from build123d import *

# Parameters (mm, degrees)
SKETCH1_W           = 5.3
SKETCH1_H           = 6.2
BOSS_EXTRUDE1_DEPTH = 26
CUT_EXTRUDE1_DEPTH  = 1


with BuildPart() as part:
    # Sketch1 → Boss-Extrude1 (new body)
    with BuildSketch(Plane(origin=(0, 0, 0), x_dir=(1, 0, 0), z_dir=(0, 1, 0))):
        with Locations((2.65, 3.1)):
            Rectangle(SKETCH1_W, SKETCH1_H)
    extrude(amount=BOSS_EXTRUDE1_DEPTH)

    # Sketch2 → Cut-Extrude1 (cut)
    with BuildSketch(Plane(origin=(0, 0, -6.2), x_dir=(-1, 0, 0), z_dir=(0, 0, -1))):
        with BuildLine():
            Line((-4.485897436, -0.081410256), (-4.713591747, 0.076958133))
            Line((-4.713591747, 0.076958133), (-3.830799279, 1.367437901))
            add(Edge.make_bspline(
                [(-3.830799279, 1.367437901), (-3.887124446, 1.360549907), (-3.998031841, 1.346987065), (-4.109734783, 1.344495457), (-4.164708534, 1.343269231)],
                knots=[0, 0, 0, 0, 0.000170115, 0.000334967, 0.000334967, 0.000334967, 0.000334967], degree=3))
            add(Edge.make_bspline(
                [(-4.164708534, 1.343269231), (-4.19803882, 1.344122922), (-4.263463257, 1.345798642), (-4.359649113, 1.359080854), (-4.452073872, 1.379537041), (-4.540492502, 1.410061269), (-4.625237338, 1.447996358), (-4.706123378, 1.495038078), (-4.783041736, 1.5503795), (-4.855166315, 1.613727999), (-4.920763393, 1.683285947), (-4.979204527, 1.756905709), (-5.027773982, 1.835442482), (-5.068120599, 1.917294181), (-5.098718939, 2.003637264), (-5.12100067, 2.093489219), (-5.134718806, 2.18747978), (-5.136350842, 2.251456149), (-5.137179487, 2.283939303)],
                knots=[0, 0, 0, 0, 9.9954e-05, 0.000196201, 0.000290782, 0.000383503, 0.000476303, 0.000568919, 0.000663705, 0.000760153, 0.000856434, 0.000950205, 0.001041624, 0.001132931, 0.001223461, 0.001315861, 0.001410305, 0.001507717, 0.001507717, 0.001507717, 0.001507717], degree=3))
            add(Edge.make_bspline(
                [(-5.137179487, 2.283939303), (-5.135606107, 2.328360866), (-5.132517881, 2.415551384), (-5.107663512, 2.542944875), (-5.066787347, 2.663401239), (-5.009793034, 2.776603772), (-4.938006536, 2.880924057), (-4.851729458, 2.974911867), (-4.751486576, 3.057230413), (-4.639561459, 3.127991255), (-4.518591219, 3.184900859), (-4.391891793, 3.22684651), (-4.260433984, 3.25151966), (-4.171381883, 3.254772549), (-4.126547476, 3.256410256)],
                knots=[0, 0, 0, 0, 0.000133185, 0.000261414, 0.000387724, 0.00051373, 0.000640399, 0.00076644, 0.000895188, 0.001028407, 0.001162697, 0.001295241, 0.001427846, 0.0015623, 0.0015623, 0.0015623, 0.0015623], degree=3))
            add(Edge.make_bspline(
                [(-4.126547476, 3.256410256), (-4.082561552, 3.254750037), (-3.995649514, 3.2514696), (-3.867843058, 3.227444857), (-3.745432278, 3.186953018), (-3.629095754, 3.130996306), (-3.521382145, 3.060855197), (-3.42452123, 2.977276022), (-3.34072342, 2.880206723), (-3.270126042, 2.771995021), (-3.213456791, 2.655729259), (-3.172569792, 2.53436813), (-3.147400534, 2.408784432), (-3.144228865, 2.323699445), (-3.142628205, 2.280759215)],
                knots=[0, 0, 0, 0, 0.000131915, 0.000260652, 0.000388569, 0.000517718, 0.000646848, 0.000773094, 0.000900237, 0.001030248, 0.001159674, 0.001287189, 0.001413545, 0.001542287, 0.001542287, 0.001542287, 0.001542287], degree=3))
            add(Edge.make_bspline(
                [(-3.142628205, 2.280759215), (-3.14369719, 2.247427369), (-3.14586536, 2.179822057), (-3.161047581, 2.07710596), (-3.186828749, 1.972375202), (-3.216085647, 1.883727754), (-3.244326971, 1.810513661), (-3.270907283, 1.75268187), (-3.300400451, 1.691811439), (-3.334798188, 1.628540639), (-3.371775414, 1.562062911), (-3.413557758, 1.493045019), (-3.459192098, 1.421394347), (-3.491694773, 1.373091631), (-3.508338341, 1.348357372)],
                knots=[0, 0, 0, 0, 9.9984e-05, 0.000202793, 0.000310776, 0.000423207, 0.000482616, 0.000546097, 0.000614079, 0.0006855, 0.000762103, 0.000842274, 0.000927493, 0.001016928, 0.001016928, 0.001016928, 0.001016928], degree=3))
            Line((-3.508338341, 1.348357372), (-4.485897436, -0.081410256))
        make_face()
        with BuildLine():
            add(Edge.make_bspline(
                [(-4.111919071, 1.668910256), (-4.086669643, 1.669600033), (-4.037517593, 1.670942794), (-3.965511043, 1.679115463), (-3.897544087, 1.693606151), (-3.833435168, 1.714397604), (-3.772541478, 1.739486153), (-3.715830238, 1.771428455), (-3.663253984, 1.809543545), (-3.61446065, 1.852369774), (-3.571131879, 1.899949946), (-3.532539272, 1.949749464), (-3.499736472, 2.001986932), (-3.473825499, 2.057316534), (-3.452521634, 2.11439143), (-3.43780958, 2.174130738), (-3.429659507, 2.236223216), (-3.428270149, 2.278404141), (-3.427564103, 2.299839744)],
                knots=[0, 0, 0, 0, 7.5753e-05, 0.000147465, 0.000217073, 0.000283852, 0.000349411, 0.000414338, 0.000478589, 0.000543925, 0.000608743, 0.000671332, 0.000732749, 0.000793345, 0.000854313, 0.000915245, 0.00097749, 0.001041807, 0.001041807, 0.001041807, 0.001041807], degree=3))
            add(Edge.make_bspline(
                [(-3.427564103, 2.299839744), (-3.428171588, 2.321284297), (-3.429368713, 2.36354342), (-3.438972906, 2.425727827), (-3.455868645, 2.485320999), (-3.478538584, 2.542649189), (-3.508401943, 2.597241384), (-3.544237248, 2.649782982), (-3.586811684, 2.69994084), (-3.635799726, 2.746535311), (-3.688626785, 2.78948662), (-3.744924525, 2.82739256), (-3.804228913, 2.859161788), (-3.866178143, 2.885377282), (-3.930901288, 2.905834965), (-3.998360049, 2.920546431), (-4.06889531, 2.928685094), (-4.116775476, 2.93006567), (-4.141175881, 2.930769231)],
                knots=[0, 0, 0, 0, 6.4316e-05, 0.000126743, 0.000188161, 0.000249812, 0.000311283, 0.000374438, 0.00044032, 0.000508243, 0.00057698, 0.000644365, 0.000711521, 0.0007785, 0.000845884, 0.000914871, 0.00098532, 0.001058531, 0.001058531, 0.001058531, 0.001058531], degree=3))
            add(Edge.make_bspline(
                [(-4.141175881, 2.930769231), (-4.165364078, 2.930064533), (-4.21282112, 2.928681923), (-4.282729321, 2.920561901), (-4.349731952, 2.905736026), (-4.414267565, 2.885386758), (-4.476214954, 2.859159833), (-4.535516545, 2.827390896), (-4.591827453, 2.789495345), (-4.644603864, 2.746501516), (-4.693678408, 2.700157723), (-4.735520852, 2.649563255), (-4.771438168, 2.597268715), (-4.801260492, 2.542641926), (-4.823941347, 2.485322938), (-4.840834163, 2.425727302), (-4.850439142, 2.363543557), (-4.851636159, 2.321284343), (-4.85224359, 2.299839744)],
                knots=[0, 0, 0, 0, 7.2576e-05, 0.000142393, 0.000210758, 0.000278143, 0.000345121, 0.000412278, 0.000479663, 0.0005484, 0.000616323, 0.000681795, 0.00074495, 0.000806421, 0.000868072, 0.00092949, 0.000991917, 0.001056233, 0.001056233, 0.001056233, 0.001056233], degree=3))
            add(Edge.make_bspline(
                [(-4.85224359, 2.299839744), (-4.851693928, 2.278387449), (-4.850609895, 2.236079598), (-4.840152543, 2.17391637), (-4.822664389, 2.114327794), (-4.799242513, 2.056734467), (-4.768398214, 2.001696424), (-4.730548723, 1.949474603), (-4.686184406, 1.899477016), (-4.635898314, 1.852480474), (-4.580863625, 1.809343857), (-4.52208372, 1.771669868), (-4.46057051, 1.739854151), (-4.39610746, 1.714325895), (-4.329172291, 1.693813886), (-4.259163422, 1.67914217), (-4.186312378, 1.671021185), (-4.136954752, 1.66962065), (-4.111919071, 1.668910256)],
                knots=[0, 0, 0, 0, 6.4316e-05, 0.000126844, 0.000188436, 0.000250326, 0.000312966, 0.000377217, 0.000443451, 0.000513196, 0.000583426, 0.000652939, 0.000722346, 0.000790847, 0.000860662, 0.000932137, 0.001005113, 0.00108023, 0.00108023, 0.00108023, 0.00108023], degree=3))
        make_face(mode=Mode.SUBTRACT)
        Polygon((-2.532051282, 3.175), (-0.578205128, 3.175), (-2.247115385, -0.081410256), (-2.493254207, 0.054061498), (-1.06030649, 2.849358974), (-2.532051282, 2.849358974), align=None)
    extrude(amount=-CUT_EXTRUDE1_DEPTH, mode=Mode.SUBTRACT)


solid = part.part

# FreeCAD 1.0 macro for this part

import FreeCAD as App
import Part
import Sketcher
from FreeCAD import Vector


def add_polygon(sketch, points):
    """Adds a closed chain of lines whose ends are joined by coincident constraints."""
    first, n = sketch.GeometryCount, len(points)
    for a, b in zip(points, points[1:] + points[:1]):
        sketch.addGeometry(Part.LineSegment(App.Vector(*a, 0), App.Vector(*b, 0)), False)
    for i in range(n):
        sketch.addConstraint(Sketcher.Constraint("Coincident", first + i, 2, first + (i + 1) % n, 1))

doc = App.newDocument("Part")
body = doc.addObject("PartDesign::Body", "Body")

# Sketch on XZ plane
sketch1 = body.newObject("Sketcher::SketchObject", "Sketch")
sketch1.AttachmentSupport = (doc.getObject("XZ_Plane"), [""])
sketch1.MapMode = "FlatFace"
add_polygon(sketch1, [(0, -6), (0, 0), (5, 0), (5, -6)])  # lines 0-3
sketch1.addConstraint(Sketcher.Constraint("Vertical", 0))
sketch1.addConstraint(Sketcher.Constraint("Horizontal", 1))
sketch1.addConstraint(Sketcher.Constraint("Vertical", 2))
sketch1.addConstraint(Sketcher.Constraint("Horizontal", 3))
sketch1.addConstraint(Sketcher.Constraint("Coincident", 0, 2, -1, 1))
sketch1.addConstraint(Sketcher.Constraint("DistanceX", 1, 1, 1, 2, 5.3))
sketch1.addConstraint(Sketcher.Constraint("DistanceY", 0, 1, 0, 2, 6.2))
pad1 = body.newObject("PartDesign::Pad", "Pad")
pad1.Profile = sketch1
pad1.Length = 26
pad1.Reversed = True

# Sketch on XY plane
sketch2 = body.newObject("Sketcher::SketchObject", "Sketch001")
sketch2.AttachmentSupport = (doc.getObject("XY_Plane"), [""])
sketch2.MapMode = "FlatFace"
sketch2.AttachmentOffset = App.Placement(Vector(0, 0, -6.2), App.Rotation())
sketch2.addGeometry(Part.LineSegment(Vector(4.713592, 0.076958, 0), Vector(4.485897, -0.08141, 0)), False)  # 0
sketch2.addGeometry(Part.LineSegment(Vector(4.485897, -0.08141, 0), Vector(3.508338, 1.348357, 0)), False)  # 1
sketch2.addGeometry(Part.BSplineCurve([Vector(3.142628, 2.280759, 0), Vector(3.143697, 2.247427, 0), Vector(3.145865, 2.179822, 0), Vector(3.161048, 2.077106, 0), Vector(3.186829, 1.972375, 0), Vector(3.216086, 1.883728, 0), Vector(3.244327, 1.810514, 0), Vector(3.270907, 1.752682, 0), Vector(3.3004, 1.691811, 0), Vector(3.334798, 1.628541, 0), Vector(3.371775, 1.562063, 0), Vector(3.413558, 1.493045, 0), Vector(3.459192, 1.421394, 0), Vector(3.491695, 1.373092, 0), Vector(3.508338, 1.348357, 0)], [4, 1, 1, 1, 1, 1, 1, 1, 1, 1, 1, 1, 4], [0, 0.000099984, 0.000202793, 0.000310776, 0.000423207, 0.000482616, 0.000546097, 0.000614079, 0.0006855, 0.000762103, 0.000842274, 0.000927493, 0.001016928], False, 3, [1, 1, 1, 1, 1, 1, 1, 1, 1, 1, 1, 1, 1, 1, 1], False), False)  # 2
sketch2.addGeometry(Part.BSplineCurve([Vector(4.126547, 3.25641, 0), Vector(4.082562, 3.25475, 0), Vector(3.99565, 3.25147, 0), Vector(3.867843, 3.227445, 0), Vector(3.745432, 3.186953, 0), Vector(3.629096, 3.130996, 0), Vector(3.521382, 3.060855, 0), Vector(3.424521, 2.977276, 0), Vector(3.340723, 2.880207, 0), Vector(3.270126, 2.771995, 0), Vector(3.213457, 2.655729, 0), Vector(3.17257, 2.534368, 0), Vector(3.147401, 2.408784, 0), Vector(3.144229, 2.323699, 0), Vector(3.142628, 2.280759, 0)], [4, 1, 1, 1, 1, 1, 1, 1, 1, 1, 1, 1, 4], [0, 0.000131915, 0.000260652, 0.000388569, 0.000517718, 0.000646848, 0.000773094, 0.000900237, 0.001030248, 0.001159674, 0.001287189, 0.001413545, 0.001542287], False, 3, [1, 1, 1, 1, 1, 1, 1, 1, 1, 1, 1, 1, 1, 1, 1], False), False)  # 3
sketch2.addGeometry(Part.BSplineCurve([Vector(5.137179, 2.283939, 0), Vector(5.135606, 2.328361, 0), Vector(5.132518, 2.415551, 0), Vector(5.107664, 2.542945, 0), Vector(5.066787, 2.663401, 0), Vector(5.009793, 2.776604, 0), Vector(4.938007, 2.880924, 0), Vector(4.851729, 2.974912, 0), Vector(4.751487, 3.05723, 0), Vector(4.639561, 3.127991, 0), Vector(4.518591, 3.184901, 0), Vector(4.391892, 3.226847, 0), Vector(4.260434, 3.25152, 0), Vector(4.171382, 3.254773, 0), Vector(4.126547, 3.25641, 0)], [4, 1, 1, 1, 1, 1, 1, 1, 1, 1, 1, 1, 4], [0, 0.000133185, 0.000261414, 0.000387724, 0.00051373, 0.000640399, 0.00076644, 0.000895188, 0.001028407, 0.001162697, 0.001295241, 0.001427846, 0.0015623], False, 3, [1, 1, 1, 1, 1, 1, 1, 1, 1, 1, 1, 1, 1, 1, 1], False), False)  # 4
sketch2.addGeometry(Part.BSplineCurve([Vector(4.164709, 1.343269, 0), Vector(4.198039, 1.344123, 0), Vector(4.263463, 1.345799, 0), Vector(4.359649, 1.359081, 0), Vector(4.452074, 1.379537, 0), Vector(4.540493, 1.410061, 0), Vector(4.625237, 1.447996, 0), Vector(4.706123, 1.495038, 0), Vector(4.783042, 1.55038, 0), Vector(4.855166, 1.613728, 0), Vector(4.920763, 1.683286, 0), Vector(4.979205, 1.756906, 0), Vector(5.027774, 1.835442, 0), Vector(5.068121, 1.917294, 0), Vector(5.098719, 2.003637, 0), Vector(5.121001, 2.093489, 0), Vector(5.134719, 2.18748, 0), Vector(5.136351, 2.251456, 0), Vector(5.137179, 2.283939, 0)], [4, 1, 1, 1, 1, 1, 1, 1, 1, 1, 1, 1, 1, 1, 1, 1, 4], [0, 0.000099954, 0.000196201, 0.000290782, 0.000383503, 0.000476303, 0.000568919, 0.000663705, 0.000760153, 0.000856434, 0.000950205, 0.001041624, 0.001132931, 0.001223461, 0.001315861, 0.001410305, 0.001507717], False, 3, [1, 1, 1, 1, 1, 1, 1, 1, 1, 1, 1, 1, 1, 1, 1, 1, 1, 1, 1], False), False)  # 5
sketch2.addGeometry(Part.BSplineCurve([Vector(3.830799, 1.367438, 0), Vector(3.887124, 1.36055, 0), Vector(3.998032, 1.346987, 0), Vector(4.109735, 1.344495, 0), Vector(4.164709, 1.343269, 0)], [4, 1, 4], [0, 0.000170115, 0.000334967], False, 3, [1, 1, 1, 1, 1], False), False)  # 6
sketch2.addGeometry(Part.LineSegment(Vector(3.830799, 1.367438, 0), Vector(4.713592, 0.076958, 0)), False)  # 7
sketch2.addGeometry(Part.BSplineCurve([Vector(4.852244, 2.29984, 0), Vector(4.851694, 2.278387, 0), Vector(4.85061, 2.23608, 0), Vector(4.840153, 2.173916, 0), Vector(4.822664, 2.114328, 0), Vector(4.799243, 2.056734, 0), Vector(4.768398, 2.001696, 0), Vector(4.730549, 1.949475, 0), Vector(4.686184, 1.899477, 0), Vector(4.635898, 1.85248, 0), Vector(4.580864, 1.809344, 0), Vector(4.522084, 1.77167, 0), Vector(4.460571, 1.739854, 0), Vector(4.396107, 1.714326, 0), Vector(4.329172, 1.693814, 0), Vector(4.259163, 1.679142, 0), Vector(4.186312, 1.671021, 0), Vector(4.136955, 1.669621, 0), Vector(4.111919, 1.66891, 0)], [4, 1, 1, 1, 1, 1, 1, 1, 1, 1, 1, 1, 1, 1, 1, 1, 4], [0, 0.000064316, 0.000126844, 0.000188436, 0.000250326, 0.000312966, 0.000377217, 0.000443451, 0.000513196, 0.000583426, 0.000652939, 0.000722346, 0.000790847, 0.000860662, 0.000932137, 0.001005113, 0.00108023], False, 3, [1, 1, 1, 1, 1, 1, 1, 1, 1, 1, 1, 1, 1, 1, 1, 1, 1, 1, 1], False), False)  # 8
sketch2.addGeometry(Part.BSplineCurve([Vector(4.141176, 2.930769, 0), Vector(4.165364, 2.930065, 0), Vector(4.212821, 2.928682, 0), Vector(4.282729, 2.920562, 0), Vector(4.349732, 2.905736, 0), Vector(4.414268, 2.885387, 0), Vector(4.476215, 2.85916, 0), Vector(4.535517, 2.827391, 0), Vector(4.591827, 2.789495, 0), Vector(4.644604, 2.746502, 0), Vector(4.693678, 2.700158, 0), Vector(4.735521, 2.649563, 0), Vector(4.771438, 2.597269, 0), Vector(4.80126, 2.542642, 0), Vector(4.823941, 2.485323, 0), Vector(4.840834, 2.425727, 0), Vector(4.850439, 2.363544, 0), Vector(4.851636, 2.321284, 0), Vector(4.852244, 2.29984, 0)], [4, 1, 1, 1, 1, 1, 1, 1, 1, 1, 1, 1, 1, 1, 1, 1, 4], [0, 0.000072576, 0.000142393, 0.000210758, 0.000278143, 0.000345121, 0.000412278, 0.000479663, 0.0005484, 0.000616323, 0.000681795, 0.00074495, 0.000806421, 0.000868072, 0.00092949, 0.000991917, 0.001056233], False, 3, [1, 1, 1, 1, 1, 1, 1, 1, 1, 1, 1, 1, 1, 1, 1, 1, 1, 1, 1], False), False)  # 9
sketch2.addGeometry(Part.BSplineCurve([Vector(3.427564, 2.29984, 0), Vector(3.428172, 2.321284, 0), Vector(3.429369, 2.363543, 0), Vector(3.438973, 2.425728, 0), Vector(3.455869, 2.485321, 0), Vector(3.478539, 2.542649, 0), Vector(3.508402, 2.597241, 0), Vector(3.544237, 2.649783, 0), Vector(3.586812, 2.699941, 0), Vector(3.6358, 2.746535, 0), Vector(3.688627, 2.789487, 0), Vector(3.744925, 2.827393, 0), Vector(3.804229, 2.859162, 0), Vector(3.866178, 2.885377, 0), Vector(3.930901, 2.905835, 0), Vector(3.99836, 2.920546, 0), Vector(4.068895, 2.928685, 0), Vector(4.116775, 2.930066, 0), Vector(4.141176, 2.930769, 0)], [4, 1, 1, 1, 1, 1, 1, 1, 1, 1, 1, 1, 1, 1, 1, 1, 4], [0, 0.000064316, 0.000126743, 0.000188161, 0.000249812, 0.000311283, 0.000374438, 0.00044032, 0.000508243, 0.00057698, 0.000644365, 0.000711521, 0.0007785, 0.000845884, 0.000914871, 0.00098532, 0.001058531], False, 3, [1, 1, 1, 1, 1, 1, 1, 1, 1, 1, 1, 1, 1, 1, 1, 1, 1, 1, 1], False), False)  # 10
sketch2.addGeometry(Part.BSplineCurve([Vector(4.111919, 1.66891, 0), Vector(4.08667, 1.6696, 0), Vector(4.037518, 1.670943, 0), Vector(3.965511, 1.679115, 0), Vector(3.897544, 1.693606, 0), Vector(3.833435, 1.714398, 0), Vector(3.772541, 1.739486, 0), Vector(3.71583, 1.771428, 0), Vector(3.663254, 1.809544, 0), Vector(3.614461, 1.85237, 0), Vector(3.571132, 1.89995, 0), Vector(3.532539, 1.949749, 0), Vector(3.499736, 2.001987, 0), Vector(3.473825, 2.057317, 0), Vector(3.452522, 2.114391, 0), Vector(3.43781, 2.174131, 0), Vector(3.42966, 2.236223, 0), Vector(3.42827, 2.278404, 0), Vector(3.427564, 2.29984, 0)], [4, 1, 1, 1, 1, 1, 1, 1, 1, 1, 1, 1, 1, 1, 1, 1, 4], [0, 0.000075753, 0.000147465, 0.000217073, 0.000283852, 0.000349411, 0.000414338, 0.000478589, 0.000543925, 0.000608743, 0.000671332, 0.000732749, 0.000793345, 0.000854313, 0.000915245, 0.00097749, 0.001041807], False, 3, [1, 1, 1, 1, 1, 1, 1, 1, 1, 1, 1, 1, 1, 1, 1, 1, 1, 1, 1], False), False)  # 11
add_polygon(sketch2, [(0.578205, 3.175), (2.532051, 3.175), (2.532051, 2.849359), (1.060306, 2.849359), (2.493254, 0.054061), (2.247115, -0.08141)])  # lines 12-17
sketch2.addConstraint(Sketcher.Constraint("Block", 2))
sketch2.addConstraint(Sketcher.Constraint("Block", 3))
sketch2.addConstraint(Sketcher.Constraint("Block", 4))
sketch2.addConstraint(Sketcher.Constraint("Block", 5))
sketch2.addConstraint(Sketcher.Constraint("Block", 6))
sketch2.addConstraint(Sketcher.Constraint("Block", 8))
sketch2.addConstraint(Sketcher.Constraint("Block", 9))
sketch2.addConstraint(Sketcher.Constraint("Block", 10))
sketch2.addConstraint(Sketcher.Constraint("Block", 11))
sketch2.addConstraint(Sketcher.Constraint("Coincident", 0, 2, 1, 1))
sketch2.addConstraint(Sketcher.Constraint("Coincident", 1, 2, 2, 2))
sketch2.addConstraint(Sketcher.Constraint("Coincident", 6, 1, 7, 1))
sketch2.addConstraint(Sketcher.Constraint("Coincident", 7, 2, 0, 1))
sketch2.addConstraint(Sketcher.Constraint("Horizontal", 12))
sketch2.addConstraint(Sketcher.Constraint("Vertical", 13))
sketch2.addConstraint(Sketcher.Constraint("Horizontal", 14))
sketch2.addConstraint(Sketcher.Constraint("Horizontal", 0, 2, 16, 2))
sketch2.addConstraint(Sketcher.Constraint("DistanceY", -1, 1, 12, 2, 3.175))
sketch2.addConstraint(Sketcher.Constraint("DistanceY", 1, 2, 13, 2, 1.501002))
sketch2.addConstraint(Sketcher.Constraint("DistanceY", 7, 2, 1, 2, 1.271399))
sketch2.addConstraint(Sketcher.Constraint("DistanceX", 17, 2, 14, 2, 0.482101))
sketch2.addConstraint(Sketcher.Constraint("Distance", 1, 1.73201))
sketch2.addConstraint(Sketcher.Constraint("Distance", 7, 1.563541))
sketch2.addConstraint(Sketcher.Constraint("DistanceX", 12, 1, 12, 2, 1.953846))
sketch2.addConstraint(Sketcher.Constraint("DistanceY", 0, 2, -1, 1, 0.08141))
sketch2.addConstraint(Sketcher.Constraint("DistanceX", -1, 1, 12, 2, 2.532051))
sketch2.addConstraint(Sketcher.Constraint("DistanceY", -1, 1, 15, 2, 0.054061))
sketch2.addConstraint(Sketcher.Constraint("DistanceX", 16, 2, 15, 2, 0.246139))
sketch2.addConstraint(Sketcher.Constraint("DistanceX", 17, 2, 16, 2, 1.66891))
pocket1 = body.newObject("PartDesign::Pocket", "Pocket")
pocket1.Profile = sketch2
pocket1.Length = 1
pocket1.Reversed = True

doc.recompute()
